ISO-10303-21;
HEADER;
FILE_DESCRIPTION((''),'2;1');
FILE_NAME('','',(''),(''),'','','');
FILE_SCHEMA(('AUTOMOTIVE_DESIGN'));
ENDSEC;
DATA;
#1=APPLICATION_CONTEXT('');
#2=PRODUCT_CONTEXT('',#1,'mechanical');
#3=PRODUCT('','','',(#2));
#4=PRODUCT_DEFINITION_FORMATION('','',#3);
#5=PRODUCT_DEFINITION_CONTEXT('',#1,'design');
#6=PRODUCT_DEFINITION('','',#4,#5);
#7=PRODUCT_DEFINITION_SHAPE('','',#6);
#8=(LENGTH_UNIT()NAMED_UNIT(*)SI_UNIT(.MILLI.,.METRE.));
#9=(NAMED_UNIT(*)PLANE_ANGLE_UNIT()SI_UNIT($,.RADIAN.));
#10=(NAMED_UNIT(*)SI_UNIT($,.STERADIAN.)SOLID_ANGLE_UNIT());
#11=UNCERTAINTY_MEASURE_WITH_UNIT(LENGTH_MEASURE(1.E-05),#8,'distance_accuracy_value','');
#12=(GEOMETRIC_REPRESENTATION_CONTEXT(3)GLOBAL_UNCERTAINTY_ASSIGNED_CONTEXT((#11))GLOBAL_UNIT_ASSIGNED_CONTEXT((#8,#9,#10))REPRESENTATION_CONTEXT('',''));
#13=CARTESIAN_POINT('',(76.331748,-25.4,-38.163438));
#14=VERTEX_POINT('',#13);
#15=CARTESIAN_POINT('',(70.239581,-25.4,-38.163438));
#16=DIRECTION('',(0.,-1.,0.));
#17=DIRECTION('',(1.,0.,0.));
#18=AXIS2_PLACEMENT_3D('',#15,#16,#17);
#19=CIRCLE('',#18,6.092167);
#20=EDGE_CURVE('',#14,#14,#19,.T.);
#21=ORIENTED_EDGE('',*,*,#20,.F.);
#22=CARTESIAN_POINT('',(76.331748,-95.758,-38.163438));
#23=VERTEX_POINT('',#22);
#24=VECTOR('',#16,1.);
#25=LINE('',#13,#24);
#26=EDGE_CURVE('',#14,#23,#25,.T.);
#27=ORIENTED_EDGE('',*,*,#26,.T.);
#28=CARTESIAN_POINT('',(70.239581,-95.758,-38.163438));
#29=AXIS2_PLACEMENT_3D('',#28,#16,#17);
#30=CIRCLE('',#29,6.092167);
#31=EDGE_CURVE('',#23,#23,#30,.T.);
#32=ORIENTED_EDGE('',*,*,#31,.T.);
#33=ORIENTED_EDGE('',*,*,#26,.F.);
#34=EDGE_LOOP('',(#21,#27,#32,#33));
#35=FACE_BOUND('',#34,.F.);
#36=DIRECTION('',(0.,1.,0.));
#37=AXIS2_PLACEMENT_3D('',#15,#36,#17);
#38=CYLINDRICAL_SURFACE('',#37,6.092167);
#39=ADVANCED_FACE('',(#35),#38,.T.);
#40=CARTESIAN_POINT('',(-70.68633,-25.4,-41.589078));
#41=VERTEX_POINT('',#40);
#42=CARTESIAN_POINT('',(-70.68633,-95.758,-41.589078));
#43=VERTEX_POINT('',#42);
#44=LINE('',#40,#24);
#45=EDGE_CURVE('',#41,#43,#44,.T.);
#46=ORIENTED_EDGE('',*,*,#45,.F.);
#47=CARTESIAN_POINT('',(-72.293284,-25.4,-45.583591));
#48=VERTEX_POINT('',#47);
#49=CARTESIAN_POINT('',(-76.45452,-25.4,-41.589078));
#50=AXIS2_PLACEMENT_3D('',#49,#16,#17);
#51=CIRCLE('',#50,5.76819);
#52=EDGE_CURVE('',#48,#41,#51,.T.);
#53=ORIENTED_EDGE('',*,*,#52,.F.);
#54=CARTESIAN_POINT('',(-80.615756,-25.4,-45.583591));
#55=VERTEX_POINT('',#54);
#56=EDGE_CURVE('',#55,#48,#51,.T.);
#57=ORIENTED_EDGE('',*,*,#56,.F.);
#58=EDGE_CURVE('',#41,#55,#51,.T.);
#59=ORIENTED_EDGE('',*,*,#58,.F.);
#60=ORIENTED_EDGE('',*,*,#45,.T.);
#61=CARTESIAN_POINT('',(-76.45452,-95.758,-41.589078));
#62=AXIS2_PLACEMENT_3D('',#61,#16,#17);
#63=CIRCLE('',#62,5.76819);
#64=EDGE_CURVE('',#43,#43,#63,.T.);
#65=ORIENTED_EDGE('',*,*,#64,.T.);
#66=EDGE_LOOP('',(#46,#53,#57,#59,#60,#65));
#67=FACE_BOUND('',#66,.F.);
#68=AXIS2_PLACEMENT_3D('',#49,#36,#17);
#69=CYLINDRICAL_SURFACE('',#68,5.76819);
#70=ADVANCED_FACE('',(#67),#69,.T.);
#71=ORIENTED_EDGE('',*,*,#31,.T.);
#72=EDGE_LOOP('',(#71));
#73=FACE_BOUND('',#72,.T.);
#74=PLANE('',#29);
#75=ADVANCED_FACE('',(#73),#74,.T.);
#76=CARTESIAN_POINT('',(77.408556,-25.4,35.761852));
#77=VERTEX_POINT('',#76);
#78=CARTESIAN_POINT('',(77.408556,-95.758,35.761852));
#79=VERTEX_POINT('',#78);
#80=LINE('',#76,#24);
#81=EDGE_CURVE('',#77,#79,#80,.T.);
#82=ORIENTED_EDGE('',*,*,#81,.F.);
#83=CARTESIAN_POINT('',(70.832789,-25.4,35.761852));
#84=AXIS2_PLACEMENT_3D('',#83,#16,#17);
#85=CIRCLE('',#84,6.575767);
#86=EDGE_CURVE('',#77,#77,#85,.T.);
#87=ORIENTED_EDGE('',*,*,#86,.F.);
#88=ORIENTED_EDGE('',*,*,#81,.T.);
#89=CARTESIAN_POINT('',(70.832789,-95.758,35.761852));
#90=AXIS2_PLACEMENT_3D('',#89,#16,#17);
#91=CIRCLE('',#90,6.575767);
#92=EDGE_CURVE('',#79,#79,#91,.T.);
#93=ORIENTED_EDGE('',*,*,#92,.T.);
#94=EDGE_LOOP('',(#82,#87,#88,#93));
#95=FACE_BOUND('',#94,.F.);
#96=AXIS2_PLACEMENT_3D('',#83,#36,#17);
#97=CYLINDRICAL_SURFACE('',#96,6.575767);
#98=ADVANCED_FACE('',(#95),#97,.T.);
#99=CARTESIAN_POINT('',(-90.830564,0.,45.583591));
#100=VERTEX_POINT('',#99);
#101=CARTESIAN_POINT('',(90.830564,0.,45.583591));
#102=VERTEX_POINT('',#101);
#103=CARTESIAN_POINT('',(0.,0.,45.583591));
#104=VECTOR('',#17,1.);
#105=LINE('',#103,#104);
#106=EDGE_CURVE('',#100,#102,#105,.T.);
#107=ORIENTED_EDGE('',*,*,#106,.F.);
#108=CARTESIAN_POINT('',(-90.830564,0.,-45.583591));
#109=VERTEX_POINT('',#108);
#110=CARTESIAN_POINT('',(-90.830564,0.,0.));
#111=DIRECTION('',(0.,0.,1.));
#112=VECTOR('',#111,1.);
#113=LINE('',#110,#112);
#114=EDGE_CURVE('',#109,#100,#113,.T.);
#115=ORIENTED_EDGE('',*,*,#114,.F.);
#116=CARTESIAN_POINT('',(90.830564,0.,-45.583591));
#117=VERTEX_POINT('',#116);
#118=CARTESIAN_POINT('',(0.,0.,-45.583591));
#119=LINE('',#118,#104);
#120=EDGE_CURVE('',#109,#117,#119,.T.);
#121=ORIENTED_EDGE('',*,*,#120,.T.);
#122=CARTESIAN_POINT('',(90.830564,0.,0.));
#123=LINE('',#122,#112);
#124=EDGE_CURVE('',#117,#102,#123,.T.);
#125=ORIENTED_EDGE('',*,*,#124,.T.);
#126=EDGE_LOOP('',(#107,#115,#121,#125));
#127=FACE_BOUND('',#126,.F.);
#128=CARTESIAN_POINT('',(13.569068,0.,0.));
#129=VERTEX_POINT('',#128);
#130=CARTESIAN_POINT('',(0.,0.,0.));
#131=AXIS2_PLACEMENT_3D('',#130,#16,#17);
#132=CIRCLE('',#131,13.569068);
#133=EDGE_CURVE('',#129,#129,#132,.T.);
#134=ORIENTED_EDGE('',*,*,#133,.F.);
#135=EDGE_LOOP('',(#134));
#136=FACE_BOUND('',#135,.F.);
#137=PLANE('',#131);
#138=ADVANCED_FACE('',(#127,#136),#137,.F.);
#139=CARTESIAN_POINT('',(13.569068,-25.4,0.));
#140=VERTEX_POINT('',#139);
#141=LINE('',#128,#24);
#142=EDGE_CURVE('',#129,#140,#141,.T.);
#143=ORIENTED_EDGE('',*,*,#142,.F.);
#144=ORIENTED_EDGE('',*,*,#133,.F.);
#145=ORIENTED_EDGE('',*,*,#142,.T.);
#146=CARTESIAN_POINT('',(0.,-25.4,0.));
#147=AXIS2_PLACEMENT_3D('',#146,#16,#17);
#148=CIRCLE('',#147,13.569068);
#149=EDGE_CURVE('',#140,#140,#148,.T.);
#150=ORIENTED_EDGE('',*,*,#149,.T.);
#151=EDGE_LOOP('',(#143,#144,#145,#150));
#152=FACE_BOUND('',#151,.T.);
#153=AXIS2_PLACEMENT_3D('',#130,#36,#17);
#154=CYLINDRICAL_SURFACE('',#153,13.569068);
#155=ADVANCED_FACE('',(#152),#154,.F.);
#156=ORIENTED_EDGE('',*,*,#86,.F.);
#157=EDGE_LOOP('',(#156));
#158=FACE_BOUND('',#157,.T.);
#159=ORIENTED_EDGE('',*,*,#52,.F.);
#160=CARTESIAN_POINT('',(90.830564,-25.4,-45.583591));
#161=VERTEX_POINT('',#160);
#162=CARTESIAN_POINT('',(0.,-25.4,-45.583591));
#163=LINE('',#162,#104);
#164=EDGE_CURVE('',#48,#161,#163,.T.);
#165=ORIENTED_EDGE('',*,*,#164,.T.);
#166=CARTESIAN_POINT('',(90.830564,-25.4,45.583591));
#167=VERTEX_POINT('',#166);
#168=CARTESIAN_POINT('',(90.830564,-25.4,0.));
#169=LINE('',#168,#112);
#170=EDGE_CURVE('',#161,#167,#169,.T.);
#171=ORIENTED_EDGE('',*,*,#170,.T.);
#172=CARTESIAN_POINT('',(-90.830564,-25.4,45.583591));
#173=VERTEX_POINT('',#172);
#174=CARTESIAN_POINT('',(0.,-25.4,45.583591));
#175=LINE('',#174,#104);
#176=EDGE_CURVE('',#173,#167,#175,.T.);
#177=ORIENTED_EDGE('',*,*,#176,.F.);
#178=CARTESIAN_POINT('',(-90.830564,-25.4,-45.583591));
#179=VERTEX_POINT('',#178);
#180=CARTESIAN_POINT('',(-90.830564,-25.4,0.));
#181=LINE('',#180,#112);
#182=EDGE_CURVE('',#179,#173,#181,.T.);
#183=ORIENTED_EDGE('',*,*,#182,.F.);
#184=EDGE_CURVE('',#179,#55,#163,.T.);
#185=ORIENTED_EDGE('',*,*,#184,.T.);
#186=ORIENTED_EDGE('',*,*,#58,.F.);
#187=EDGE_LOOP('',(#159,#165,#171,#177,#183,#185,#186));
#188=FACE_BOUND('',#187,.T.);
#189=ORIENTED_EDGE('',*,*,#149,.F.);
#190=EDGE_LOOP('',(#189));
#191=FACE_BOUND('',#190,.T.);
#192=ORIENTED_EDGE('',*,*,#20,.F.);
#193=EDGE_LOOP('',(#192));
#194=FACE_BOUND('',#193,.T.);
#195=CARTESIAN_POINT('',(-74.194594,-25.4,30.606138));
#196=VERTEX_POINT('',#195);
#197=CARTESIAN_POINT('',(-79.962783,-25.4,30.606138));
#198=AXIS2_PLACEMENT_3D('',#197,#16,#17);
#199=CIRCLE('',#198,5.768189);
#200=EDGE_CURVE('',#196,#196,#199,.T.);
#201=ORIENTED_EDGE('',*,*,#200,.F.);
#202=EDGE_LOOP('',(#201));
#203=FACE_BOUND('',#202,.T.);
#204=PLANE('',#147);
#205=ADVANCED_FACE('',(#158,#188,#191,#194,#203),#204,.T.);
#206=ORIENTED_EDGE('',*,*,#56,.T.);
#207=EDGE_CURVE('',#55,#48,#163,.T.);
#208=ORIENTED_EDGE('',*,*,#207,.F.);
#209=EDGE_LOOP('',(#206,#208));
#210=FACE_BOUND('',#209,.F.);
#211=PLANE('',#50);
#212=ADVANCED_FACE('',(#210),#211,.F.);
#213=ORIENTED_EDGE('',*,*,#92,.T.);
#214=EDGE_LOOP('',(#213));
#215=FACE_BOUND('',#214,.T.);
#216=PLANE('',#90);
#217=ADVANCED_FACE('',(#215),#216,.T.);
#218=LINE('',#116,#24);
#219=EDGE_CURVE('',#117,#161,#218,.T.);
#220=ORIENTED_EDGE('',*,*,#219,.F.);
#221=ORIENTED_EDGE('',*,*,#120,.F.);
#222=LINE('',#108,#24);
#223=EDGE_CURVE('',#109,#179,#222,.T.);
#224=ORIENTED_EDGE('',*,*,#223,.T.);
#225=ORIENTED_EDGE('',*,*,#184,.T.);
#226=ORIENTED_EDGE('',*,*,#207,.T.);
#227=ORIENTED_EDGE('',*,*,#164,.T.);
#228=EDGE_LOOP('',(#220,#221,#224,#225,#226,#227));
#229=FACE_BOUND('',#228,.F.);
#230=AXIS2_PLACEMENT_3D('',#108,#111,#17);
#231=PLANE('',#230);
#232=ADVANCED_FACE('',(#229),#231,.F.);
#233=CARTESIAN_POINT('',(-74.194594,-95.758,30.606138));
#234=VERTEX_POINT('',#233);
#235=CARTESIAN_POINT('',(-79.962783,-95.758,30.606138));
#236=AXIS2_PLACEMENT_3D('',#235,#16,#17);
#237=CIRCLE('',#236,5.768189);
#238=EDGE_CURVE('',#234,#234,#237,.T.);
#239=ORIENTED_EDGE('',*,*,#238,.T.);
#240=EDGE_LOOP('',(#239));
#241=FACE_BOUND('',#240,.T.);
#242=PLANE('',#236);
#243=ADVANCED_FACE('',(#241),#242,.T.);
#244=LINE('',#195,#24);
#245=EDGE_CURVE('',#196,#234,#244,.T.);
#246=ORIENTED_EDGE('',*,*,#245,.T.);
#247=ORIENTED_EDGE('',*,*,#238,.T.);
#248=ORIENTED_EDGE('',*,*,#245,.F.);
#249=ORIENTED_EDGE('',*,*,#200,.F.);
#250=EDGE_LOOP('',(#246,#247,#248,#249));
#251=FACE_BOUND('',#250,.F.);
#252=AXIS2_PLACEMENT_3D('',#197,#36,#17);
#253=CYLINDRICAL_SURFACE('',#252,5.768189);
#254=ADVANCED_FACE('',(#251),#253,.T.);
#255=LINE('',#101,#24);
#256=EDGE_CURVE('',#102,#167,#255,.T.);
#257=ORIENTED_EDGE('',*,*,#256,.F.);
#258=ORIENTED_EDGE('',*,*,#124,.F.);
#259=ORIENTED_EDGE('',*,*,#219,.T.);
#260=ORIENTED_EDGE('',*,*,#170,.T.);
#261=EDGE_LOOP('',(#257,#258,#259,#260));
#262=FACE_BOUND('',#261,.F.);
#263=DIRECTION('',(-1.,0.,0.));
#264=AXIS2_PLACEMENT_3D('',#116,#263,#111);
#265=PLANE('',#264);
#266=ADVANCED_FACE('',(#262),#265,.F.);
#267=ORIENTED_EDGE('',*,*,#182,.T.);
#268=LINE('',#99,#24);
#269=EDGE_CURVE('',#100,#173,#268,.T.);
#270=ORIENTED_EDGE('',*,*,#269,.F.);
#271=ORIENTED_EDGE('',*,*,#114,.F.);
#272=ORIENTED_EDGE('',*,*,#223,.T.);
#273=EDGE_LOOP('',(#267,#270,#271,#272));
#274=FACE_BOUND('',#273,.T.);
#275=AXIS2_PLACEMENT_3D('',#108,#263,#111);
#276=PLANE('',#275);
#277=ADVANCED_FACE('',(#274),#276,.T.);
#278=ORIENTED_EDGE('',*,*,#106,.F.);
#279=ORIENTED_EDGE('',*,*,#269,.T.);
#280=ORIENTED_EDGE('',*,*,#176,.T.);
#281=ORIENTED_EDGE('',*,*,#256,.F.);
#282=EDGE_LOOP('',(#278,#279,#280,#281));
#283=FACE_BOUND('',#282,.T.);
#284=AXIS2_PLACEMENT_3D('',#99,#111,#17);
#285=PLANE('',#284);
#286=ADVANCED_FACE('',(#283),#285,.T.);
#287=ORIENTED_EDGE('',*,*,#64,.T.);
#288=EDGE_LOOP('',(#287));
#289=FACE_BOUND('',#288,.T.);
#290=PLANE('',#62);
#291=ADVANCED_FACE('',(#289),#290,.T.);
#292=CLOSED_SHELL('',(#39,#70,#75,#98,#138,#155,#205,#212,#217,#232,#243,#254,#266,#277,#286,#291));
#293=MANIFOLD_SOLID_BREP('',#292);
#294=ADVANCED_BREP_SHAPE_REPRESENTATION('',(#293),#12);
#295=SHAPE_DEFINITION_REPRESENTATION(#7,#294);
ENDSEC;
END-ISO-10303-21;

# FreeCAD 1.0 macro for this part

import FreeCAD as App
import Part
import Sketcher

V = App.Vector
Q = App.Units.Quantity


def add_polygon(sketch, points):
    """Adds a closed chain of lines whose ends are joined by coincident constraints."""
    first, n = sketch.GeometryCount, len(points)
    for a, b in zip(points, points[1:] + points[:1]):
        sketch.addGeometry(Part.LineSegment(App.Vector(*a, 0), App.Vector(*b, 0)), False)
    for i in range(n):
        sketch.addConstraint(Sketcher.Constraint("Coincident", first + i, 2, first + (i + 1) % n, 1))

doc = App.newDocument("Part")
body = doc.addObject("PartDesign::Body", "Body")

# Sketch on XZ plane
sketch1 = body.newObject("Sketcher::SketchObject", "Sketch")
sketch1.AttachmentSupport = (doc.getObject("XZ_Plane"), [""])
sketch1.MapMode = "FlatFace"
add_polygon(sketch1, [(-91, 46), (-91, -46), (91, -46), (91, 46)])  # lines 0-3
sketch1.addGeometry(Part.Circle(V(0, 0, 0), V(0, 0, 1), 14), False)  # 4
sketch1.addConstraint([
    Sketcher.Constraint("Vertical", 0),
    Sketcher.Constraint("Horizontal", 1),
    Sketcher.Constraint("Vertical", 2),
    Sketcher.Constraint("Horizontal", 3),
    Sketcher.Constraint("Coincident", 4, 3, -1, 1),
    Sketcher.Constraint("Symmetric", 0, 2, 2, 2, -1, 1),
    Sketcher.Constraint("Diameter", 4, 27.138136),
    Sketcher.Constraint("DistanceX", 1, 1, 1, 2, 181.661129),
    Sketcher.Constraint("DistanceY", 0, 2, 0, 1, 91.167182),
])
pad1 = body.newObject("PartDesign::Pad", "Pad")
pad1.Profile = sketch1
pad1.Length = Q("1 in")

# Sketch on XZ plane
sketch2 = body.newObject("Sketcher::SketchObject", "Sketch001")
sketch2.AttachmentSupport = (doc.getObject("XZ_Plane"), [""])
sketch2.MapMode = "FlatFace"
sketch2.AttachmentOffset = App.Placement(V(0, 0, 1 * 25.4), App.Rotation())
sketch2.addGeometry([
    Part.Circle(V(70, -38, 0), V(0, 0, 1), 6),
    Part.Circle(V(71, 36, 0), V(0, 0, 1), 7),
    Part.Circle(V(-76, -42, 0), V(0, 0, 1), 6),
    Part.Circle(V(-80, 31, 0), V(0, 0, 1), 6),
], False)
sketch2.addConstraint([
    Sketcher.Constraint("Equal", 2, 3),
    Sketcher.Constraint("Diameter", 2, 11.536381),
    Sketcher.Constraint("Diameter", 0, 12.184335),
    Sketcher.Constraint("Diameter", 1, 13.151533),
    Sketcher.Constraint("DistanceX", 2, 3, 0, 3, 146.694101),
    Sketcher.Constraint("DistanceX", -1, 1, 0, 3, 70.239581),
    Sketcher.Constraint("DistanceY", 0, 3, -1, 1, 38.163438),
    Sketcher.Constraint("DistanceX", -1, 1, 1, 3, 70.832789),
    Sketcher.Constraint("DistanceY", -1, 1, 1, 3, 35.761852),
    Sketcher.Constraint("DistanceY", 2, 3, 0, 3, 3.425639),
    Sketcher.Constraint("DistanceX", 3, 3, 1, 3, 150.795572),
    Sketcher.Constraint("DistanceY", -1, 1, 3, 3, 30.606138),
])
pad2 = body.newObject("PartDesign::Pad", "Pad001")
pad2.Profile = sketch2
pad2.Length = Q("2.77 in")

doc.recompute()
